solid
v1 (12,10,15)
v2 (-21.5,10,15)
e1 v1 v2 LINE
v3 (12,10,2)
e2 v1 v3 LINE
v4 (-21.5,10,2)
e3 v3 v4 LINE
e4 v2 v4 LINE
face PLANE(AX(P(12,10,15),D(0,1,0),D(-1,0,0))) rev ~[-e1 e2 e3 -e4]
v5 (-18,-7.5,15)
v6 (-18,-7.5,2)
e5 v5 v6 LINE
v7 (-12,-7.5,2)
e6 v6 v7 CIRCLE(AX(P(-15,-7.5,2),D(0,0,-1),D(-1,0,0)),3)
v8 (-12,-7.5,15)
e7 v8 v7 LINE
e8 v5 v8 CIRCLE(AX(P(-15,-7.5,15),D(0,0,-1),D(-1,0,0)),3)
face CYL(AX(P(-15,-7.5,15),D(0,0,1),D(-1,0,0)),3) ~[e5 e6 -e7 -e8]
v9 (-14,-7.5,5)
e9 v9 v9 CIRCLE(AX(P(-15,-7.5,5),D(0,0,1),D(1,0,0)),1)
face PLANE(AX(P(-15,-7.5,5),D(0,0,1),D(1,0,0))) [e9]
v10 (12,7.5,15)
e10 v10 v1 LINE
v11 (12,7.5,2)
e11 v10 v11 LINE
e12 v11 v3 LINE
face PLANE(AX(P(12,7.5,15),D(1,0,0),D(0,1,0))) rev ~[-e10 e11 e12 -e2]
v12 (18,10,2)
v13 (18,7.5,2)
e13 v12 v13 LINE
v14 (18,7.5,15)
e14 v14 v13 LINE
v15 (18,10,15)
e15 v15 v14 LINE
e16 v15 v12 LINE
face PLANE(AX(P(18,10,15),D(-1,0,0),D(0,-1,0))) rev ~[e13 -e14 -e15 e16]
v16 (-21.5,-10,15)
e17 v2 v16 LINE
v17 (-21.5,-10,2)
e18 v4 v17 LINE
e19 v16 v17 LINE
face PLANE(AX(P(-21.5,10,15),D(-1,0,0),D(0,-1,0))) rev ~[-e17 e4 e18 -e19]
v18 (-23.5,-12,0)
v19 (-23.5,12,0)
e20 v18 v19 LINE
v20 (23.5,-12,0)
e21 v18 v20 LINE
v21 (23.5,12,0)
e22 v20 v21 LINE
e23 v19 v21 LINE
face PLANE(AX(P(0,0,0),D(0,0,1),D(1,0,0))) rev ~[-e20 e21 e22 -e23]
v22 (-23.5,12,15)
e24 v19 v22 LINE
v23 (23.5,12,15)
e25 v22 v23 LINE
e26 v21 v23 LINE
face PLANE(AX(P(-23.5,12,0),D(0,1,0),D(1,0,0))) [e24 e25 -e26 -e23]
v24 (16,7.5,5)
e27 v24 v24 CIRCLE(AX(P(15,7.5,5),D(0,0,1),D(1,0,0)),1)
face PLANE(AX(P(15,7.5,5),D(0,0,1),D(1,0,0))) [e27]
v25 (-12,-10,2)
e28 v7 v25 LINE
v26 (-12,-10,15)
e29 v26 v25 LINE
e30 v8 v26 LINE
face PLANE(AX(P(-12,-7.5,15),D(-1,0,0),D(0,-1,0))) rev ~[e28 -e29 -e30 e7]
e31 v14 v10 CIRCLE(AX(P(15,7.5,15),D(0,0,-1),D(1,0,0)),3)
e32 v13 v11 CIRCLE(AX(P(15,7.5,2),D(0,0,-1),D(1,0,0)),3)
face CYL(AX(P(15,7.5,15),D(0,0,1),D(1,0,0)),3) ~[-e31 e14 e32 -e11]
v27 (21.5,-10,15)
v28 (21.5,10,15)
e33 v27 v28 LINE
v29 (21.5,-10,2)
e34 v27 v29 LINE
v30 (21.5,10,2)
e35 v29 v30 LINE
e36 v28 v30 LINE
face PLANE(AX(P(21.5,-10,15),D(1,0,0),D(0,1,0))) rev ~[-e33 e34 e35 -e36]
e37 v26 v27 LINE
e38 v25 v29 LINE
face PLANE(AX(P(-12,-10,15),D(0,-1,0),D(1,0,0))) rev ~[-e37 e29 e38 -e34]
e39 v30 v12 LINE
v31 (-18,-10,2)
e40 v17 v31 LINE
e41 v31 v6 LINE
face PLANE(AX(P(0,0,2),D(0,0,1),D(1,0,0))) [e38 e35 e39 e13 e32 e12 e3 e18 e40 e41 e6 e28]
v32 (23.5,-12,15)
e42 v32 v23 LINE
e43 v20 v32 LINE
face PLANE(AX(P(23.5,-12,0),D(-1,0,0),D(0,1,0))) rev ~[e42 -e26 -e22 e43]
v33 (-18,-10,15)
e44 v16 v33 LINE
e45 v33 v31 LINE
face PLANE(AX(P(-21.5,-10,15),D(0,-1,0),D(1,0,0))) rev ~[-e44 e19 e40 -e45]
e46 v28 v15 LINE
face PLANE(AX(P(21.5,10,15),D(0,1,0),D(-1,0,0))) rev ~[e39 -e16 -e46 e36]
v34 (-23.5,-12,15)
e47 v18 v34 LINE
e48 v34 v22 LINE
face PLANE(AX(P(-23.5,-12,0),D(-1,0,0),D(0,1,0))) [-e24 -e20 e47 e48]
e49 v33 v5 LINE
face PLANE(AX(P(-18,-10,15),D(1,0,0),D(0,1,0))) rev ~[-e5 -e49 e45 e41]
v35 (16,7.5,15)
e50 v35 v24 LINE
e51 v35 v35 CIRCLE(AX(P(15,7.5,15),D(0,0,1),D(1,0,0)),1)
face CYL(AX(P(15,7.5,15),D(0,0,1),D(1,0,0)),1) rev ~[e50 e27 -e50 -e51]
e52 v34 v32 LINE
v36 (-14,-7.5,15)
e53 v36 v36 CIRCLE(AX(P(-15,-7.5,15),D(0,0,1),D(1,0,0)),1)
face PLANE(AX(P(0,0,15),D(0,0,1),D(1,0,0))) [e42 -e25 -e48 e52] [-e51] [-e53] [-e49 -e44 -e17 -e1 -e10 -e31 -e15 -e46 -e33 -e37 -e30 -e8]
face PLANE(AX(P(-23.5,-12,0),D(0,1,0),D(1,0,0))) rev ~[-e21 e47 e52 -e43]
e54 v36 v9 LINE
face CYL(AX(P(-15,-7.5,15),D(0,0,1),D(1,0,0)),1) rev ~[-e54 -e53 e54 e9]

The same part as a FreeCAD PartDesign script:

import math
import FreeCAD as App
import Part
import Sketcher
Q = App.Units.Quantity

doc = App.newDocument("Part")
body = doc.addObject("PartDesign::Body", "Body")

# Sketch on XY plane
sketch1 = doc.addObject("Sketcher::SketchObject", "Sketch")
body.addObject(sketch1)
sketch1.AttachmentSupport = (doc.XY_Plane, [""])
sketch1.MapMode = "FlatFace"
sketch1.addGeometry([
    Part.LineSegment(App.Vector(-23.5, 12, 0), App.Vector(-23.5, -12, 0)),
    Part.LineSegment(App.Vector(-23.5, -12, 0), App.Vector(23.5, -12, 0)),
    Part.LineSegment(App.Vector(23.5, -12, 0), App.Vector(23.5, 12, 0)),
    Part.LineSegment(App.Vector(23.5, 12, 0), App.Vector(-23.5, 12, 0)),
], False)
sketch1.addConstraint([
    Sketcher.Constraint("Coincident", 0, 2, 1, 1),
    Sketcher.Constraint("Coincident", 1, 2, 2, 1),
    Sketcher.Constraint("Coincident", 2, 2, 3, 1),
    Sketcher.Constraint("Coincident", 3, 2, 0, 1),
    Sketcher.Constraint("Vertical", 0),
    Sketcher.Constraint("Horizontal", 1),
    Sketcher.Constraint("Vertical", 2),
    Sketcher.Constraint("Horizontal", 3),
    Sketcher.Constraint("Symmetric", 0, 2, 2, 2, -1, 1),
    Sketcher.Constraint("DistanceX", 1, 1, 1, 2, Q("47 mm")),
    Sketcher.Constraint("DistanceY", 0, 2, 0, 1, Q("24 mm")),
])
pad1 = doc.addObject("PartDesign::Pad", "Pad")
body.addObject(pad1)
pad1.Profile = sketch1
pad1.Length = 15

# Sketch on XY plane
sketch2 = doc.addObject("Sketcher::SketchObject", "Sketch001")
body.addObject(sketch2)
sketch2.AttachmentSupport = (doc.XY_Plane, [""])
sketch2.MapMode = "FlatFace"
sketch2.AttachmentOffset = App.Placement(App.Vector(0, 0, 15), App.Rotation())
sketch2.addGeometry([
    Part.LineSegment(App.Vector(21.5, 10, 0), App.Vector(18, 10, 0)),  # 0
    Part.LineSegment(App.Vector(18, 10, 0), App.Vector(18, 7.5, 0)),  # 1
    Part.ArcOfCircle(Part.Circle(App.Vector(15, 7.5, 0), App.Vector(0, 0, 1), 3), math.radians(180), math.radians(360)),  # 2
    Part.LineSegment(App.Vector(12, 7.5, 0), App.Vector(12, 10, 0)),  # 3
    Part.LineSegment(App.Vector(12, 10, 0), App.Vector(-21.5, 10, 0)),  # 4
    Part.LineSegment(App.Vector(-21.5, 10, 0), App.Vector(-21.5, -10, 0)),  # 5
    Part.LineSegment(App.Vector(-21.5, -10, 0), App.Vector(-18, -10, 0)),  # 6
    Part.LineSegment(App.Vector(-18, -10, 0), App.Vector(-18, -7.5, 0)),  # 7
    Part.ArcOfCircle(Part.Circle(App.Vector(-15, -7.5, 0), App.Vector(0, 0, 1), 3), math.radians(0), math.radians(180)),  # 8
    Part.LineSegment(App.Vector(-12, -7.5, 0), App.Vector(-12, -10, 0)),  # 9
    Part.LineSegment(App.Vector(-12, -10, 0), App.Vector(21.5, -10, 0)),  # 10
    Part.LineSegment(App.Vector(21.5, -10, 0), App.Vector(21.5, 10, 0)),  # 11
], False)
sketch2.addConstraint([
    Sketcher.Constraint("Coincident", 0, 2, 1, 1),
    Sketcher.Constraint("Tangent", 1, 2, 2, 2),
    Sketcher.Constraint("Tangent", 2, 1, 3, 1),
    Sketcher.Constraint("Coincident", 3, 2, 4, 1),
    Sketcher.Constraint("Coincident", 4, 2, 5, 1),
    Sketcher.Constraint("Coincident", 5, 2, 6, 1),
    Sketcher.Constraint("Coincident", 6, 2, 7, 1),
    Sketcher.Constraint("Tangent", 7, 2, 8, 2),
    Sketcher.Constraint("Tangent", 8, 1, 9, 1),
    Sketcher.Constraint("Coincident", 9, 2, 10, 1),
    Sketcher.Constraint("Coincident", 10, 2, 11, 1),
    Sketcher.Constraint("Coincident", 11, 2, 0, 1),
    Sketcher.Constraint("Horizontal", 0),
    Sketcher.Constraint("Vertical", 1),
    Sketcher.Constraint("Vertical", 3),
    Sketcher.Constraint("Horizontal", 4),
    Sketcher.Constraint("Vertical", 5),
    Sketcher.Constraint("Horizontal", 6),
    Sketcher.Constraint("Vertical", 7),
    Sketcher.Constraint("Vertical", 9),
    Sketcher.Constraint("Horizontal", 10),
    Sketcher.Constraint("Vertical", 11),
    Sketcher.Constraint("Equal", 2, 8),
    Sketcher.Constraint("Symmetric", 2, 3, 8, 3, -1, 1),
    Sketcher.Constraint("Symmetric", 4, 2, 10, 2, -1, 1),
    Sketcher.Constraint("Horizontal", 0, 2, 3, 2),
    Sketcher.Constraint("Horizontal", 6, 2, 9, 2),
    Sketcher.Constraint("Radius", 2, Q("3 mm")),
    Sketcher.Constraint("DistanceY", 5, 2, 5, 1, Q("20 mm")),
    Sketcher.Constraint("DistanceX", 0, 2, 0, 1, Q("3.5 mm")),
    Sketcher.Constraint("DistanceX", 4, 2, 4, 1, Q("33.5 mm")),
    Sketcher.Constraint("DistanceY", 1, 2, 1, 1, Q("2.5 mm")),
])
pocket1 = doc.addObject("PartDesign::Pocket", "Pocket")
body.addObject(pocket1)
pocket1.Profile = sketch2
pocket1.Length = 13

# Sketch on XY plane
sketch3 = doc.addObject("Sketcher::SketchObject", "Sketch002")
body.addObject(sketch3)
sketch3.AttachmentSupport = (doc.XY_Plane, [""])
sketch3.MapMode = "FlatFace"
sketch3.AttachmentOffset = App.Placement(App.Vector(0, 0, 15), App.Rotation())
sketch3.addGeometry([
    Part.Circle(App.Vector(15, 7.5, 0), App.Vector(0, 0, 1), 1),
    Part.Circle(App.Vector(-15, -7.5, 0), App.Vector(0, 0, 1), 1),
], False)
sketch3.addConstraint([
    Sketcher.Constraint("Equal", 0, 1),
    Sketcher.Constraint("Symmetric", 0, 3, 1, 3, -1, 1),
    Sketcher.Constraint("Diameter", 0, Q("2 mm")),
    Sketcher.Constraint("DistanceX", -1, 1, 0, 3, Q("15 mm")),
    Sketcher.Constraint("DistanceY", 1, 3, 0, 3, Q("15 mm")),
])
pocket2 = doc.addObject("PartDesign::Pocket", "Pocket001")
body.addObject(pocket2)
pocket2.Profile = sketch3
pocket2.Length = 10

doc.recompute()
